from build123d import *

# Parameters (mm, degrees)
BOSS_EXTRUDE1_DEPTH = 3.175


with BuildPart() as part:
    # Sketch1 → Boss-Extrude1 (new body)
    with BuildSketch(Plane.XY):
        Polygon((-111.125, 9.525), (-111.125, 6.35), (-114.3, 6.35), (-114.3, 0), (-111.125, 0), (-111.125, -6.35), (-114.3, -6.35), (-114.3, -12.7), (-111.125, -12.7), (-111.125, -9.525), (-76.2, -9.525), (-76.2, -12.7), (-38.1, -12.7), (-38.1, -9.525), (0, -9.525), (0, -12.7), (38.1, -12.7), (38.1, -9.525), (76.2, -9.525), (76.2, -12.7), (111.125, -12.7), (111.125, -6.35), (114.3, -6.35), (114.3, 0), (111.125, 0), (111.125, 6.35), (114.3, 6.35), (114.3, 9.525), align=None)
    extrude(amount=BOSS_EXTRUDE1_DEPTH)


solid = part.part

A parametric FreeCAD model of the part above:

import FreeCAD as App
import Part
import Sketcher
from FreeCAD import Vector
Q = App.Units.Quantity


def add_polygon(sketch, points):
    """Adds a closed chain of lines whose ends are joined by coincident constraints."""
    first, n = sketch.GeometryCount, len(points)
    for a, b in zip(points, points[1:] + points[:1]):
        sketch.addGeometry(Part.LineSegment(App.Vector(*a, 0), App.Vector(*b, 0)), False)
    for i in range(n):
        sketch.addConstraint(Sketcher.Constraint("Coincident", first + i, 2, first + (i + 1) % n, 1))

doc = App.newDocument("Part")
body = doc.addObject("PartDesign::Body", "Body")

sketch1 = body.newObject("Sketcher::SketchObject", "Sketch")
sketch1.AttachmentSupport = (doc.getObject("XY_Plane"), [""])
sketch1.MapMode = "FlatFace"
add_polygon(sketch1, [(-111.1, 9.5), (-111.1, 6.3), (-114.3, 6.3), (-114.3, 0), (-111.1, 0), (-111.1, -6.3), (-114.3, -6.3), (-114.3, -12.7), (-111.1, -12.7), (-111.1, -9.5), (-76.2, -9.5), (-76.2, -12.7), (-38.1, -12.7), (-38.1, -9.5), (0, -9.5), (0, -12.7), (38.1, -12.7), (38.1, -9.5), (76.2, -9.5), (76.2, -12.7), (111.1, -12.7), (111.1, -6.3), (114.3, -6.3), (114.3, 0), (111.1, 0), (111.1, 6.3), (114.3, 6.3), (114.3, 9.5)])
sketch1.addConstraint([
    Sketcher.Constraint("Vertical", 0),
    Sketcher.Constraint("Horizontal", 1),
    Sketcher.Constraint("Vertical", 2),
    Sketcher.Constraint("Horizontal", 3),
    Sketcher.Constraint("Vertical", 4),
    Sketcher.Constraint("Horizontal", 5),
    Sketcher.Constraint("Vertical", 6),
    Sketcher.Constraint("Horizontal", 7),
    Sketcher.Constraint("Vertical", 8),
    Sketcher.Constraint("Horizontal", 9),
    Sketcher.Constraint("Vertical", 10),
    Sketcher.Constraint("Horizontal", 11),
    Sketcher.Constraint("Vertical", 12),
    Sketcher.Constraint("Horizontal", 13),
    Sketcher.Constraint("Vertical", 14),
    Sketcher.Constraint("Horizontal", 15),
    Sketcher.Constraint("Vertical", 16),
    Sketcher.Constraint("Horizontal", 17),
    Sketcher.Constraint("Vertical", 18),
    Sketcher.Constraint("Horizontal", 19),
    Sketcher.Constraint("Vertical", 20),
    Sketcher.Constraint("Horizontal", 21),
    Sketcher.Constraint("Vertical", 22),
    Sketcher.Constraint("Horizontal", 23),
    Sketcher.Constraint("Vertical", 24),
    Sketcher.Constraint("Horizontal", 25),
    Sketcher.Constraint("Vertical", 26),
    Sketcher.Constraint("Horizontal", 27),
    Sketcher.Constraint("Symmetric", 0, 2, 20, 2, -1, 1),
    Sketcher.Constraint("Symmetric", 2, 2, 22, 2, -1, 1),
    Sketcher.Constraint("Symmetric", 4, 2, 24, 2, -1, 1),
    Sketcher.Constraint("Symmetric", 11, 2, 15, 2, -2),
    Sketcher.Constraint("Symmetric", 9, 2, 17, 2, -2),
    Sketcher.Constraint("Symmetric", 7, 2, 19, 2, -2),
    Sketcher.Constraint("Symmetric", 4, 2, 20, 2, -2),
    Sketcher.Constraint("PointOnObject", 2, 2, -1),
    Sketcher.Constraint("PointOnObject", 13, 2, -2),
    Sketcher.Constraint("Horizontal", 7, 2, 10, 2),
    Sketcher.Constraint("Horizontal", 9, 2, 12, 2),
    Sketcher.Constraint("Vertical", 2, 2, 5, 2),
    Sketcher.Constraint("Vertical", 22, 2, 25, 2),
    Sketcher.Constraint("Equal", 11, 13),
    Sketcher.Constraint("Equal", 25, 0),
    Sketcher.Constraint("Equal", 4, 6),
    Sketcher.Constraint("Equal", 0, 8),
    Sketcher.Constraint("DistanceX", 11, 1, 11, 2, Q("1.5 in")),
    Sketcher.Constraint("DistanceX", 16, 2, 21, 2, Q("3 in")),
    Sketcher.Constraint("DistanceY", 2, 2, 2, 1, Q("0.25 in")),
    Sketcher.Constraint("DistanceX", 1, 2, 1, 1, Q("0.125 in")),
])
pad1 = body.newObject("PartDesign::Pad", "Pad")
pad1.Profile = sketch1
pad1.Length = Q("0.125 in")

doc.recompute()
